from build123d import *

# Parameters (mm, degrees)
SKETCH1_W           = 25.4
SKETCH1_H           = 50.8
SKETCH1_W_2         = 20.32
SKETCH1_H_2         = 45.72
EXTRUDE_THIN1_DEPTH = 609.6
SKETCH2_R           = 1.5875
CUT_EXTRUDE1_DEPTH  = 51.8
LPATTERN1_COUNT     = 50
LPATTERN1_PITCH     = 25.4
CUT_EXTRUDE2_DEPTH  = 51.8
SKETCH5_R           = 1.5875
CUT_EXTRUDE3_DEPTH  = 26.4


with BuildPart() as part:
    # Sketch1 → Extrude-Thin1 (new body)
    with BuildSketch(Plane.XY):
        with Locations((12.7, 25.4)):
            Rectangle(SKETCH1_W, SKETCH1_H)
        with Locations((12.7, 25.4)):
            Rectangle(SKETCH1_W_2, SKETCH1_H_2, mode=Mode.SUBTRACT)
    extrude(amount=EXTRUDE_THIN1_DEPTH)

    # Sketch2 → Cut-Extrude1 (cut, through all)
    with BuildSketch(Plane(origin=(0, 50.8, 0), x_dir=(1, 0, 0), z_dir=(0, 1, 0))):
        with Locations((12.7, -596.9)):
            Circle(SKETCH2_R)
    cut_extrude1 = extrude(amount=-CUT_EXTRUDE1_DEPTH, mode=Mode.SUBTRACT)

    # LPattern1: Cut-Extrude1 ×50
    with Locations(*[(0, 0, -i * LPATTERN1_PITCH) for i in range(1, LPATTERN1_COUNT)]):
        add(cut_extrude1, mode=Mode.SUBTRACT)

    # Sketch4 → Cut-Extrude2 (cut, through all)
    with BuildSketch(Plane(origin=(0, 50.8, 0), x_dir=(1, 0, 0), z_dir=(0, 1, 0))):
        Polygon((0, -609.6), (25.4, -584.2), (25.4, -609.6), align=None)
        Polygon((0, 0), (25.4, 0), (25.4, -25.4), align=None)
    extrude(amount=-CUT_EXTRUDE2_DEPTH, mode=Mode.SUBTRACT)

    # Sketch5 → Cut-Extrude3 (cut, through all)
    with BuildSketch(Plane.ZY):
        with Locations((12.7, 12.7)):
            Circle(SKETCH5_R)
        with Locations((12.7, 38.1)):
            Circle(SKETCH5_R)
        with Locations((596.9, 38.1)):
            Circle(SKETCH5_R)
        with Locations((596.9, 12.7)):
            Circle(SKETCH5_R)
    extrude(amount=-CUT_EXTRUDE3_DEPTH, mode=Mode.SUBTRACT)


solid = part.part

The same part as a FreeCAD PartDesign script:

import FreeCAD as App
import Part
import Sketcher
Q = App.Units.Quantity

doc = App.newDocument("Part")
params = doc.addObject("Spreadsheet::Sheet", "Params")
for row, (alias, value) in enumerate([
    ("sketch1_width", "1 in"),
    ("sketch1_height", "2 in"),
    ("sketch1_width2", "0.8 in"),
    ("sketch1_height2", "1.8 in"),
    ("pad1_length", "24 in"),
    ("sketch2_diameter", "0.125 in"),
    ("linearpattern_pitch", "1 in"),
    ("sketch3_width", "1 in"),
    ("sketch4_diameter", "0.125 in"),
], start=1):
    params.set(f"A{row}", alias)
    params.set(f"B{row}", "=" + value)
    params.setAlias(f"B{row}", alias)

body = doc.addObject("PartDesign::Body", "Body")

sketch1 = body.newObject("Sketcher::SketchObject", "Sketch")
sketch1.AttachmentSupport = (doc.getObject("XY_Plane"), [""])
sketch1.MapMode = "FlatFace"
sketch1.addGeometry([
    Part.LineSegment(App.Vector(0, 51, 0), App.Vector(0, 0, 0)),
    Part.LineSegment(App.Vector(0, 0, 0), App.Vector(25, 0, 0)),
    Part.LineSegment(App.Vector(25, 0, 0), App.Vector(25, 51, 0)),
    Part.LineSegment(App.Vector(25, 51, 0), App.Vector(0, 51, 0)),
    Part.LineSegment(App.Vector(23, 3, 0), App.Vector(3, 3, 0)),
    Part.LineSegment(App.Vector(3, 3, 0), App.Vector(3, 48, 0)),
    Part.LineSegment(App.Vector(3, 48, 0), App.Vector(23, 48, 0)),
    Part.LineSegment(App.Vector(23, 48, 0), App.Vector(23, 3, 0)),
], False)
sketch1.addConstraint([
    Sketcher.Constraint("Coincident", 0, 2, 1, 1),
    Sketcher.Constraint("Coincident", 1, 2, 2, 1),
    Sketcher.Constraint("Coincident", 2, 2, 3, 1),
    Sketcher.Constraint("Coincident", 3, 2, 0, 1),
    Sketcher.Constraint("Coincident", 4, 2, 5, 1),
    Sketcher.Constraint("Coincident", 5, 2, 6, 1),
    Sketcher.Constraint("Coincident", 6, 2, 7, 1),
    Sketcher.Constraint("Coincident", 7, 2, 4, 1),
    Sketcher.Constraint("Vertical", 0),
    Sketcher.Constraint("Horizontal", 1),
    Sketcher.Constraint("Vertical", 2),
    Sketcher.Constraint("Horizontal", 3),
    Sketcher.Constraint("Horizontal", 4),
    Sketcher.Constraint("Vertical", 5),
    Sketcher.Constraint("Horizontal", 6),
    Sketcher.Constraint("Vertical", 7),
    Sketcher.Constraint("Coincident", 0, 2, -1, 1),
    Sketcher.Constraint("DistanceX", 1, 1, 1, 2, Q("1 in")),
    Sketcher.Constraint("DistanceY", 0, 2, 0, 1, Q("2 in")),
    Sketcher.Constraint("DistanceX", 4, 2, 4, 1, Q("0.8 in")),
    Sketcher.Constraint("DistanceY", 5, 1, 5, 2, Q("1.8 in")),
    Sketcher.Constraint("DistanceX", -1, 1, 4, 2, Q("0.1 in")),
    Sketcher.Constraint("DistanceY", -1, 1, 4, 2, Q("0.1 in")),
])
sketch1.setExpression("Constraints[17]", "Params.sketch1_width")
sketch1.setExpression("Constraints[18]", "Params.sketch1_height")
sketch1.setExpression("Constraints[19]", "Params.sketch1_width2")
sketch1.setExpression("Constraints[20]", "Params.sketch1_height2")
pad1 = body.newObject("PartDesign::Pad", "Pad")
pad1.Profile = sketch1
pad1.setExpression("Length", "Params.pad1_length")

sketch2 = body.newObject("Sketcher::SketchObject", "Sketch001")
sketch2.AttachmentSupport = (doc.getObject("XZ_Plane"), [""])
sketch2.MapMode = "FlatFace"
sketch2.AttachmentOffset = App.Placement(App.Vector(0, 0, -2 * 25.4), App.Rotation())
sketch2.addGeometry(Part.Circle(App.Vector(12.7, 596.9, 0), App.Vector(0, 0, 1), 1.6), False)
sketch2.addConstraint([
    Sketcher.Constraint("Diameter", 0, Q("0.125 in")),
    Sketcher.Constraint("DistanceX", -1, 1, 0, 3, Q("0.5 in")),
    Sketcher.Constraint("DistanceY", -1, 1, 0, 3, Q("23.5 in")),
])
sketch2.setExpression("Constraints[0]", "Params.sketch2_diameter")
pocket1 = body.newObject("PartDesign::Pocket", "Pocket")
pocket1.Profile = sketch2
pocket1.Type = "ThroughAll"
pocket1.Reversed = True
doc.recompute()

linearpattern = body.newObject("PartDesign::LinearPattern", "LinearPattern")
linearpattern.Originals = [pocket1]
linearpattern.Direction = (doc.getObject("Z_Axis"), [""])
linearpattern.Mode = "offset"
linearpattern.setExpression("Offset", "Params.linearpattern_pitch")
linearpattern.Occurrences = 50
linearpattern.Reversed = True
body.Tip = linearpattern

sketch3 = body.newObject("Sketcher::SketchObject", "Sketch002")
sketch3.AttachmentSupport = (doc.getObject("XZ_Plane"), [""])
sketch3.MapMode = "FlatFace"
sketch3.AttachmentOffset = App.Placement(App.Vector(0, 0, -2 * 25.4), App.Rotation())
sketch3.addGeometry([
    Part.LineSegment(App.Vector(25, 584, 0), App.Vector(0, 610, 0)),
    Part.LineSegment(App.Vector(0, 610, 0), App.Vector(25, 610, 0)),
    Part.LineSegment(App.Vector(25, 610, 0), App.Vector(25, 584, 0)),
    Part.LineSegment(App.Vector(25, 0, 0), App.Vector(0, 0, 0)),
    Part.LineSegment(App.Vector(0, 0, 0), App.Vector(25, 25, 0)),
    Part.LineSegment(App.Vector(25, 25, 0), App.Vector(25, 0, 0)),
], False)
sketch3.addConstraint([
    Sketcher.Constraint("Coincident", 0, 2, 1, 1),
    Sketcher.Constraint("Coincident", 1, 2, 2, 1),
    Sketcher.Constraint("Coincident", 2, 2, 0, 1),
    Sketcher.Constraint("Coincident", 3, 2, 4, 1),
    Sketcher.Constraint("Coincident", 4, 2, 5, 1),
    Sketcher.Constraint("Coincident", 5, 2, 3, 1),
    Sketcher.Constraint("Horizontal", 1),
    Sketcher.Constraint("Vertical", 2),
    Sketcher.Constraint("Horizontal", 3),
    Sketcher.Constraint("Vertical", 5),
    Sketcher.Constraint("Coincident", 3, 2, -1, 1),
    Sketcher.Constraint("PointOnObject", 0, 2, -2),
    Sketcher.Constraint("Perpendicular", 0, 4),
    Sketcher.Constraint("Vertical", 2, 2, 4, 2),
    Sketcher.Constraint("Equal", 3, 2),
    Sketcher.Constraint("DistanceX", 1, 1, 1, 2, Q("1 in")),
    Sketcher.Constraint("DistanceY", -1, 1, 0, 2, Q("24 in")),
])
sketch3.setExpression("Constraints[15]", "Params.sketch3_width")
pocket2 = body.newObject("PartDesign::Pocket", "Pocket001")
pocket2.Profile = sketch3
pocket2.Type = "ThroughAll"
pocket2.Reversed = True

sketch4 = body.newObject("Sketcher::SketchObject", "Sketch003")
sketch4.AttachmentSupport = (doc.getObject("YZ_Plane"), [""])
sketch4.MapMode = "FlatFace"
sketch4.addGeometry([
    Part.Circle(App.Vector(12.7, 12.7, 0), App.Vector(0, 0, 1), 1.6),
    Part.Circle(App.Vector(38.1, 12.7, 0), App.Vector(0, 0, 1), 1.6),
    Part.Circle(App.Vector(38.1, 596.9, 0), App.Vector(0, 0, 1), 1.6),
    Part.Circle(App.Vector(12.7, 596.9, 0), App.Vector(0, 0, 1), 1.6),
], False)
sketch4.addConstraint([
    Sketcher.Constraint("Equal", 0, 1),
    Sketcher.Constraint("Equal", 1, 2),
    Sketcher.Constraint("Equal", 2, 3),
    Sketcher.Constraint("Horizontal", 0, 3, 1, 3),
    Sketcher.Constraint("Horizontal", 2, 3, 3, 3),
    Sketcher.Constraint("Vertical", 1, 3, 2, 3),
    Sketcher.Constraint("Vertical", 0, 3, 3, 3),
    Sketcher.Constraint("Diameter", 0, Q("0.125 in")),
    Sketcher.Constraint("DistanceX", 0, 3, 1, 3, Q("1 in")),
    Sketcher.Constraint("DistanceY", 1, 3, 2, 3, Q("23 in")),
    Sketcher.Constraint("DistanceX", -1, 1, 0, 3, Q("0.5 in")),
    Sketcher.Constraint("DistanceY", -1, 1, 0, 3, Q("0.5 in")),
])
sketch4.setExpression("Constraints[7]", "Params.sketch4_diameter")
pocket3 = body.newObject("PartDesign::Pocket", "Pocket002")
pocket3.Profile = sketch4
pocket3.Type = "ThroughAll"
pocket3.Reversed = True

doc.recompute()
